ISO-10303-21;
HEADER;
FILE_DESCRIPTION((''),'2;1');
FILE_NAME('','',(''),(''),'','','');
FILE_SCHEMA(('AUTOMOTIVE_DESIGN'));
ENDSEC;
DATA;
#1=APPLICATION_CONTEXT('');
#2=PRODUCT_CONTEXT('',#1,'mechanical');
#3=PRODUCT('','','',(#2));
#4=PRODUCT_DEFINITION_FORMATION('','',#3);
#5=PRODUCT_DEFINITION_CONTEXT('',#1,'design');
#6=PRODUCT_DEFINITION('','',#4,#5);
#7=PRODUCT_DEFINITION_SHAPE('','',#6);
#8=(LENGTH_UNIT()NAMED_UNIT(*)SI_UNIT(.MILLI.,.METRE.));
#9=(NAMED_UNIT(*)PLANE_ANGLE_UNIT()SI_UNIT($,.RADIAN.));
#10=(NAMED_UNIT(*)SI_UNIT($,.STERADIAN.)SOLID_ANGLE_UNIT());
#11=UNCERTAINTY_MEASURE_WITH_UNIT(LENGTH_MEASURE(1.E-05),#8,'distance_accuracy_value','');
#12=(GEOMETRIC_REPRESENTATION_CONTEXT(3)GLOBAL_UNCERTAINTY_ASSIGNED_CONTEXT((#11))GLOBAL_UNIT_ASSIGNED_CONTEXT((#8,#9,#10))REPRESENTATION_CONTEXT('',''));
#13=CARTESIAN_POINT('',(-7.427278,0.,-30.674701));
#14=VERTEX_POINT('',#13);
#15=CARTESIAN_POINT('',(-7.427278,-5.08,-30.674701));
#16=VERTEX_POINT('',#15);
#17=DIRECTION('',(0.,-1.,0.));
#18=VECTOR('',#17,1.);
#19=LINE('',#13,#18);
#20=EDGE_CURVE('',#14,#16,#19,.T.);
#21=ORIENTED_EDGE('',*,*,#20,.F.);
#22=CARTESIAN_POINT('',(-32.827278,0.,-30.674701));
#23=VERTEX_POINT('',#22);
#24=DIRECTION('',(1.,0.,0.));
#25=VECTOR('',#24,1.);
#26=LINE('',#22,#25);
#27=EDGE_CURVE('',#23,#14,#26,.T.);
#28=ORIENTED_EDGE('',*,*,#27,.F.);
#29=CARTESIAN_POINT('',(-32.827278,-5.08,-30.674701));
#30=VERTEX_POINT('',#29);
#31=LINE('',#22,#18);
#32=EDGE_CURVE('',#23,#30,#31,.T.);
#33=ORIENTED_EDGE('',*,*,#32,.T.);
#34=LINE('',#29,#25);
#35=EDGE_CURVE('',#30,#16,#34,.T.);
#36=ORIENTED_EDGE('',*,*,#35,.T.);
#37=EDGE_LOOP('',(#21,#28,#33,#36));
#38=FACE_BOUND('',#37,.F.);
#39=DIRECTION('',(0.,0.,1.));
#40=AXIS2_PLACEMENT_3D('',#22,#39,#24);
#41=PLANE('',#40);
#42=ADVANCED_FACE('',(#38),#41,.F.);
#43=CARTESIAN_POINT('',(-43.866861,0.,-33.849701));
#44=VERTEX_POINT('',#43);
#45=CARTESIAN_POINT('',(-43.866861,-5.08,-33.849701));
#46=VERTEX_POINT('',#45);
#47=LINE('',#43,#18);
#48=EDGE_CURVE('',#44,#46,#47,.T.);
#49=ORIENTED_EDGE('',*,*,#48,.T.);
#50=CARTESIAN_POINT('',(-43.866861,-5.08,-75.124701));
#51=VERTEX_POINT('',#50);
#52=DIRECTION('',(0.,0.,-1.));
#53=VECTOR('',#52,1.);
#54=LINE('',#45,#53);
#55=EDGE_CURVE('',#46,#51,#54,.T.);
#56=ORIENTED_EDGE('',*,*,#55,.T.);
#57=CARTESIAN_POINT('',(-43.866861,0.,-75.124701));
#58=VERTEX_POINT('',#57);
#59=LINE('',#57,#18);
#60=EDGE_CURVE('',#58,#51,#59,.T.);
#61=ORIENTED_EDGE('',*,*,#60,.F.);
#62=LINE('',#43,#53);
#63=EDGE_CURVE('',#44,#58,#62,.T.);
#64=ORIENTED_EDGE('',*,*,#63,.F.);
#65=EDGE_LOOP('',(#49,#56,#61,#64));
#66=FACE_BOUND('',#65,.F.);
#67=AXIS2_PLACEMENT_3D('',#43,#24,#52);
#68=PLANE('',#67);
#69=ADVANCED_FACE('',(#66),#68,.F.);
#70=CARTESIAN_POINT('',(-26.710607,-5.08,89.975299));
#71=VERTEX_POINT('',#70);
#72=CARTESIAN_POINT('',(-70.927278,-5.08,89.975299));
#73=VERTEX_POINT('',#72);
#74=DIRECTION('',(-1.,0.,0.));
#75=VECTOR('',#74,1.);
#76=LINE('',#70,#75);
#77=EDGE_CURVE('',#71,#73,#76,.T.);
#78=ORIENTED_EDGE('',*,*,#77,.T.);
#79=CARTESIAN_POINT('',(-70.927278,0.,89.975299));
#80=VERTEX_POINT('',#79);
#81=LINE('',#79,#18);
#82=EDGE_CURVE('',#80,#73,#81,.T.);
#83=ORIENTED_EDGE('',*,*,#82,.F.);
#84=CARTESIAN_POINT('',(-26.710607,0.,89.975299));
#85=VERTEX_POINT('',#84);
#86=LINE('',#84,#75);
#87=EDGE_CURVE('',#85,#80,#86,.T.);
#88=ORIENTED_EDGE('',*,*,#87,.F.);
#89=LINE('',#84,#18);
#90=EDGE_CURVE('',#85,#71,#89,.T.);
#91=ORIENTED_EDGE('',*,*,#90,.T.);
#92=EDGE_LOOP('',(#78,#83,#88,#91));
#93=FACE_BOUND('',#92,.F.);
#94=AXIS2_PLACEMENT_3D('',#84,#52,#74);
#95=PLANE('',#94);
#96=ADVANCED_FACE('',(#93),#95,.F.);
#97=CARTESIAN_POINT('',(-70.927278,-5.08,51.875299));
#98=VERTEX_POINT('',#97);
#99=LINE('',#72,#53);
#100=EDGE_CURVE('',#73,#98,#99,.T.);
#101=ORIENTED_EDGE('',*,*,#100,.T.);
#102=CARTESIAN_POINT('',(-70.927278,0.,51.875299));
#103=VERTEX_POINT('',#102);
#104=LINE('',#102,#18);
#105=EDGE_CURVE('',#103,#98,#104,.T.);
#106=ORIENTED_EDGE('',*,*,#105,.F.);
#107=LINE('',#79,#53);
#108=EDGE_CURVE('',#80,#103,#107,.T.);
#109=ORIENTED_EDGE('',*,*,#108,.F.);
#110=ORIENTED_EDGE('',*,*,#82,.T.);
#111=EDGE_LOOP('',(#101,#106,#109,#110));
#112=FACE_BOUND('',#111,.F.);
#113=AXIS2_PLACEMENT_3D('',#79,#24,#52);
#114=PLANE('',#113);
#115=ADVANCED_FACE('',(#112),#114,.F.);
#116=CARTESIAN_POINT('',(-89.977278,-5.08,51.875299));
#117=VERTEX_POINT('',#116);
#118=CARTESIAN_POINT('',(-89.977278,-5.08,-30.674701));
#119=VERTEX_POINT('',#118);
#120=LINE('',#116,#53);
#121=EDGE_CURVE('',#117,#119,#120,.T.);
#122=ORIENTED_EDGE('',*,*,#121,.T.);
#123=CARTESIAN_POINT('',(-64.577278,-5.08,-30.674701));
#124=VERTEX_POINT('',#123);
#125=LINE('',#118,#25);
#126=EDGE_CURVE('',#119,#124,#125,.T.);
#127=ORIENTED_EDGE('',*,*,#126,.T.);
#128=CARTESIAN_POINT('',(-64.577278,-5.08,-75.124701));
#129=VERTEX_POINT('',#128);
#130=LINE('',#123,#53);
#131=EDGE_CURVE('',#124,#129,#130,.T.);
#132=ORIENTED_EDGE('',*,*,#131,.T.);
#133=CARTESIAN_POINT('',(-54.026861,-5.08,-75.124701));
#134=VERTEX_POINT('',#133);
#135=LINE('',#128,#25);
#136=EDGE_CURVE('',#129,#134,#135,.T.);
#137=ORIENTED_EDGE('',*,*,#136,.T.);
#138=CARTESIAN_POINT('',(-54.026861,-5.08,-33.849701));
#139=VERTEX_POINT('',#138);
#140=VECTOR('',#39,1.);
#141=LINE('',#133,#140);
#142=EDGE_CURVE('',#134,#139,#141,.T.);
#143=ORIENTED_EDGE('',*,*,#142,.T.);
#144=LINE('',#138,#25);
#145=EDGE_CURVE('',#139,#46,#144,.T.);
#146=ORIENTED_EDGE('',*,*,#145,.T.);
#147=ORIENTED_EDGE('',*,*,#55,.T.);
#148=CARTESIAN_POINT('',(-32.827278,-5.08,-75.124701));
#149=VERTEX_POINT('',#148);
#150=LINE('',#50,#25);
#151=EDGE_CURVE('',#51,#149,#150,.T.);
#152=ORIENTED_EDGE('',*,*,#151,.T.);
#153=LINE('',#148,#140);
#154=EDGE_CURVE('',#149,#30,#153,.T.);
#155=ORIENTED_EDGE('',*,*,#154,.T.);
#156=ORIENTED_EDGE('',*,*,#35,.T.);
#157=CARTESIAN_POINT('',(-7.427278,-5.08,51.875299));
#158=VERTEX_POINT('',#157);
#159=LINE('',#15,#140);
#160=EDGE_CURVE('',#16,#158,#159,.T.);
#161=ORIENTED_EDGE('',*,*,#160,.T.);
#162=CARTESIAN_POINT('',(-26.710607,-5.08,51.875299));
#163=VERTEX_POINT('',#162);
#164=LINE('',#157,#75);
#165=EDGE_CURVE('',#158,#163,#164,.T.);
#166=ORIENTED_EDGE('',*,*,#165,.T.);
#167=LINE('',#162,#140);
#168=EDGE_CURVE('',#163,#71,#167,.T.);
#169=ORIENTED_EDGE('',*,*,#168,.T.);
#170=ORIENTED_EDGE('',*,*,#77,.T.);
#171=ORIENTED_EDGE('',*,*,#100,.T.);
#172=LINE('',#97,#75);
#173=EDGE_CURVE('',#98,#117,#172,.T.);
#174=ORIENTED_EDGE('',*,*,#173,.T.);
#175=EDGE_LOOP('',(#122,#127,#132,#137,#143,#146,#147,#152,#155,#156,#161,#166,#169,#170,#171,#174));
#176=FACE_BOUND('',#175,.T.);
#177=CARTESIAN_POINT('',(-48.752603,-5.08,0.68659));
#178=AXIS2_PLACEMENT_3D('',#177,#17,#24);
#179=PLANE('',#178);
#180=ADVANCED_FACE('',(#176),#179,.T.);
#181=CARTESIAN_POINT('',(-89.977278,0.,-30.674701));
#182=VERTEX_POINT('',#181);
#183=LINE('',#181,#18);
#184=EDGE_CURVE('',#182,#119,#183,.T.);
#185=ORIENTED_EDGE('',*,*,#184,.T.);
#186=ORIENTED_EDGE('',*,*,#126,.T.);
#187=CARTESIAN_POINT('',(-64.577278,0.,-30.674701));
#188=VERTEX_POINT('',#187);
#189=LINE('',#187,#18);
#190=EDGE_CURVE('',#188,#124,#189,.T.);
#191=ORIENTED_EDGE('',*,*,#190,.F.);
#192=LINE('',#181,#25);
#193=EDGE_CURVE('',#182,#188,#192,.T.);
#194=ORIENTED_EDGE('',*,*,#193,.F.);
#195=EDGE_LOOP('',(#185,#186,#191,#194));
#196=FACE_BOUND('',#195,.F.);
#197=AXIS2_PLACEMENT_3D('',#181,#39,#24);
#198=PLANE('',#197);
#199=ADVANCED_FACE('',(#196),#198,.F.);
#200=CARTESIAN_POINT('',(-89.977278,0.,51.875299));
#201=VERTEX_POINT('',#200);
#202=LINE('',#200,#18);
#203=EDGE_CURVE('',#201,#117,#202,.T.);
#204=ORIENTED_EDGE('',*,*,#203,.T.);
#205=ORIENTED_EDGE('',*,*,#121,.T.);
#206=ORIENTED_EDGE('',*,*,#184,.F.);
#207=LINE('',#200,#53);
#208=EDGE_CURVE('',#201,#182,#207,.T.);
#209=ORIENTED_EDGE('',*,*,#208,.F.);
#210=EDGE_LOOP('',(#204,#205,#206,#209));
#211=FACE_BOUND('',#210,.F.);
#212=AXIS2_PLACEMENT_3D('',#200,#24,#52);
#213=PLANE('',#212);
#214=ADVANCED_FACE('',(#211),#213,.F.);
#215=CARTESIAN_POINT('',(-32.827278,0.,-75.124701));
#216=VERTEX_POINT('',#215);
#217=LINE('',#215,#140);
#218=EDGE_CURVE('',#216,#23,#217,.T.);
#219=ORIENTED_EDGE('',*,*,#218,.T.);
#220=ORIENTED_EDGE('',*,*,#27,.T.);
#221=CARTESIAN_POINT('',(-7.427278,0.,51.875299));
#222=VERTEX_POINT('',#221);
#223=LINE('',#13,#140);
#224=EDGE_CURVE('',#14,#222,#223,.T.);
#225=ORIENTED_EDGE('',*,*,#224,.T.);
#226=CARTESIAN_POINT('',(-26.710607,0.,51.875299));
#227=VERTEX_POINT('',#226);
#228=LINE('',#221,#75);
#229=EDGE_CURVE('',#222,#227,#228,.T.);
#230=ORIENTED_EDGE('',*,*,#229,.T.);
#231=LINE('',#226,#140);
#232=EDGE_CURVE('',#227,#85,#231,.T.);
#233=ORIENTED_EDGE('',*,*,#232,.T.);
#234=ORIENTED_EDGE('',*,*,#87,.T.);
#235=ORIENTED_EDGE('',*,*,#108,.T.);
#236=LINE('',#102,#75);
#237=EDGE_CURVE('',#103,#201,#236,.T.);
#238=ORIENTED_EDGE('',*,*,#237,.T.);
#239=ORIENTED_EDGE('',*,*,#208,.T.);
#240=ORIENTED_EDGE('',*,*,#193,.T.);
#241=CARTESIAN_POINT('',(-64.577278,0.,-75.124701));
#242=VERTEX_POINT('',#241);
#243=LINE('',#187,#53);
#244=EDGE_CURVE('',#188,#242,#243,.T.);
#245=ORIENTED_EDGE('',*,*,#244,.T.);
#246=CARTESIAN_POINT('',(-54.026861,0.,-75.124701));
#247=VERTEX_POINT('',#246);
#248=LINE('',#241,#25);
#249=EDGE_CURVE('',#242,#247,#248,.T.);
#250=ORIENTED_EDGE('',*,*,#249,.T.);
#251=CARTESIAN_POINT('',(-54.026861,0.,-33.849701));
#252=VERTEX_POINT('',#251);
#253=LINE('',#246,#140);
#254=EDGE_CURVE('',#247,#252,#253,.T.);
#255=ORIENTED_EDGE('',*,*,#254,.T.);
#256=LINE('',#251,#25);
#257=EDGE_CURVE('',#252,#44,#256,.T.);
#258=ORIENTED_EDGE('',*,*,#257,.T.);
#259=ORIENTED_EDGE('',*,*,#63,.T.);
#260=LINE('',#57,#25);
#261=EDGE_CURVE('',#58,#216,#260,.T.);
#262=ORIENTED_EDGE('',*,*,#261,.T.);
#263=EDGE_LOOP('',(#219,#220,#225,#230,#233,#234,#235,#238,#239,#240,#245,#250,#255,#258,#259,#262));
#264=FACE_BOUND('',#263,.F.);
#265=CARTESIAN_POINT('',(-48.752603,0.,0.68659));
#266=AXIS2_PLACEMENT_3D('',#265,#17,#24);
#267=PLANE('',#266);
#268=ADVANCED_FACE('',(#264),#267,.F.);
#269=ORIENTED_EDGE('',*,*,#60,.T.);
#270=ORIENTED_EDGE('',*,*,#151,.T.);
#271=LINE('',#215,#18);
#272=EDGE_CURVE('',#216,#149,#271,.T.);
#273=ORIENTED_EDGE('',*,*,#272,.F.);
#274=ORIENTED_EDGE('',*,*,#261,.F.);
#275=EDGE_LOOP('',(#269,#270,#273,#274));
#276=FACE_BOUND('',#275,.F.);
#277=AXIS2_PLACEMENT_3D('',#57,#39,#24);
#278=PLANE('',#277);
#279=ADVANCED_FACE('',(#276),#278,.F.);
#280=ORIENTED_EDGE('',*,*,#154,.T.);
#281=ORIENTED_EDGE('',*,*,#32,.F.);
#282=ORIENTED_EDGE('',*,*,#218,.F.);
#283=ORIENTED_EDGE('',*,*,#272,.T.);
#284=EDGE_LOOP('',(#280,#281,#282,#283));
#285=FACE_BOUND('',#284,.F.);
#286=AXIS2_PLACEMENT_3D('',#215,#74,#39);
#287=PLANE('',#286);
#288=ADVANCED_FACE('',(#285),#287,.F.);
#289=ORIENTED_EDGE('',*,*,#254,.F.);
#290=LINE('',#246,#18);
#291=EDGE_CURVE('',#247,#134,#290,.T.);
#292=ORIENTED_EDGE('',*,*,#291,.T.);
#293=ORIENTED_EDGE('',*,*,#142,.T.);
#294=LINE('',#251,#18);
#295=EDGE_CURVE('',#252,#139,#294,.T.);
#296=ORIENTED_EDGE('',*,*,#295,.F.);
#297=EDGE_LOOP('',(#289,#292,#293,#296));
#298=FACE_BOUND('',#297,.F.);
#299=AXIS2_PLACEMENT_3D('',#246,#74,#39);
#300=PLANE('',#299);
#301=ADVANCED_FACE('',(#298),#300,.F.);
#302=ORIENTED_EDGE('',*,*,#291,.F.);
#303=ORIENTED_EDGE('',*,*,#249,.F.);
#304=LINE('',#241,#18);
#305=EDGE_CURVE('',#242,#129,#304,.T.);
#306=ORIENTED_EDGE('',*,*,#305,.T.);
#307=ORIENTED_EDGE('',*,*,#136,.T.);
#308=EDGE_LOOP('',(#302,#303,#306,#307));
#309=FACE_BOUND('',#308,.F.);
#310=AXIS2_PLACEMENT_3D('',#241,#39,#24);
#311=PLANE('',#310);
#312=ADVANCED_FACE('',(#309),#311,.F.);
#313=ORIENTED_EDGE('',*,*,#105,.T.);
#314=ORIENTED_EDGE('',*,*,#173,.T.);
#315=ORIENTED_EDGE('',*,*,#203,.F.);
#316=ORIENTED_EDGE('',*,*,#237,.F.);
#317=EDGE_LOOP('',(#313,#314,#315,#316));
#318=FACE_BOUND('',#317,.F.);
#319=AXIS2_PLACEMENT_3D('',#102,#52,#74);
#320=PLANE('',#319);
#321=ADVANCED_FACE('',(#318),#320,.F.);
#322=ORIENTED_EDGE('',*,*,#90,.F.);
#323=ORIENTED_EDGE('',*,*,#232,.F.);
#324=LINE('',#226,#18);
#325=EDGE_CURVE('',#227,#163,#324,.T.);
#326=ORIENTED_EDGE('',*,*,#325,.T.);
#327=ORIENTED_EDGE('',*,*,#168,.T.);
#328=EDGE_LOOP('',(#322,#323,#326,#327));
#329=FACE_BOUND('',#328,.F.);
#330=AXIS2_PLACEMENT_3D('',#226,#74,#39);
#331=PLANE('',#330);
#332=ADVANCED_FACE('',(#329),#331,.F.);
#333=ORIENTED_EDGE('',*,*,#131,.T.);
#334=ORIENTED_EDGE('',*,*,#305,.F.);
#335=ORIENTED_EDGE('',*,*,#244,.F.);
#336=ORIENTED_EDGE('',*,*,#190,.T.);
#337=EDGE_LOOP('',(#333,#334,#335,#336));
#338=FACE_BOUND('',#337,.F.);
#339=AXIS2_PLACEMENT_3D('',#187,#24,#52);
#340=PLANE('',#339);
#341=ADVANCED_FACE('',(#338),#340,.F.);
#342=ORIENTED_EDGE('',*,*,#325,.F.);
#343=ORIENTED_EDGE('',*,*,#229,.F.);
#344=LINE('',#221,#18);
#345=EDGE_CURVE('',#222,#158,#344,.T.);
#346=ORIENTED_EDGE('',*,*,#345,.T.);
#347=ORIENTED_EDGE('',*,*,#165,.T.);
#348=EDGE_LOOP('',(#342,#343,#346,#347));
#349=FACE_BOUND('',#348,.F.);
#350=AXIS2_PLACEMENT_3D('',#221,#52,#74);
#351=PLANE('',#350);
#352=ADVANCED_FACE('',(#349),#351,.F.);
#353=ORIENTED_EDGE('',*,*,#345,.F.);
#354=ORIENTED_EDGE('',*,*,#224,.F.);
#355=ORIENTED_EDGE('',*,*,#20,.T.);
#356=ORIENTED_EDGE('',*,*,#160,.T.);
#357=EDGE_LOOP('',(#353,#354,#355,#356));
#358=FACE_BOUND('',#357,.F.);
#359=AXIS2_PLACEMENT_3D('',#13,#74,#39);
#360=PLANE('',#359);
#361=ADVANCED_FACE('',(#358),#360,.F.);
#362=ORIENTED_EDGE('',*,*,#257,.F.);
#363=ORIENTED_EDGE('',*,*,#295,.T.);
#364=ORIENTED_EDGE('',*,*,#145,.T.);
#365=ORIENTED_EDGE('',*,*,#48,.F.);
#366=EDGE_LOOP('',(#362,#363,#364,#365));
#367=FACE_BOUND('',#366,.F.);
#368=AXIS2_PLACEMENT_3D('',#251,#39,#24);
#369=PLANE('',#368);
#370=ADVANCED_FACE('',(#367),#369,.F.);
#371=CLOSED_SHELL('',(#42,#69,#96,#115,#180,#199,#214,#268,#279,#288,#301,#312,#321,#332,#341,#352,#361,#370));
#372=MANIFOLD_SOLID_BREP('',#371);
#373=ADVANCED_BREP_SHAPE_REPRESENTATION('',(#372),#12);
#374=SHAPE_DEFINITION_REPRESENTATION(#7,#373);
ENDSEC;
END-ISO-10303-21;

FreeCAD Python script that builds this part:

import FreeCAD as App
import Part
import Sketcher
Q = App.Units.Quantity

doc = App.newDocument("Part")
body = doc.addObject("PartDesign::Body", "Body")

# Sketch on XZ plane
sketch1 = body.newObject("Sketcher::SketchObject", "Sketch")
sketch1.AttachmentSupport = (doc.getObject("XZ_Plane"), [""])
sketch1.MapMode = "FlatFace"
sketch1.addGeometry([
    Part.LineSegment(App.Vector(-71, 52, 0), App.Vector(-90, 52, 0)),  # 0
    Part.LineSegment(App.Vector(-90, 52, 0), App.Vector(-90, -31, 0)),  # 1
    Part.LineSegment(App.Vector(-90, -31, 0), App.Vector(-65, -31, 0)),  # 2
    Part.LineSegment(App.Vector(-65, -31, 0), App.Vector(-65, -75, 0)),  # 3
    Part.LineSegment(App.Vector(-65, -75, 0), App.Vector(-54, -75, 0)),  # 4
    Part.LineSegment(App.Vector(-54, -75, 0), App.Vector(-54, -34, 0)),  # 5
    Part.LineSegment(App.Vector(-54, -34, 0), App.Vector(-44, -34, 0)),  # 6
    Part.LineSegment(App.Vector(-44, -34, 0), App.Vector(-44, -75, 0)),  # 7
    Part.LineSegment(App.Vector(-44, -75, 0), App.Vector(-33, -75, 0)),  # 8
    Part.LineSegment(App.Vector(-33, -75, 0), App.Vector(-33, -31, 0)),  # 9
    Part.LineSegment(App.Vector(-33, -31, 0), App.Vector(-7, -31, 0)),  # 10
    Part.LineSegment(App.Vector(-7, -31, 0), App.Vector(-7, 52, 0)),  # 11
    Part.LineSegment(App.Vector(-7, 52, 0), App.Vector(-27, 52, 0)),  # 12
    Part.LineSegment(App.Vector(-27, 52, 0), App.Vector(-27, 90, 0)),  # 13
    Part.LineSegment(App.Vector(-27, 90, 0), App.Vector(-71, 90, 0)),  # 14
    Part.LineSegment(App.Vector(-71, 90, 0), App.Vector(-71, 52, 0)),  # 15
], False)
sketch1.addConstraint([
    Sketcher.Constraint("Coincident", 0, 2, 1, 1),
    Sketcher.Constraint("Coincident", 1, 2, 2, 1),
    Sketcher.Constraint("Coincident", 2, 2, 3, 1),
    Sketcher.Constraint("Coincident", 3, 2, 4, 1),
    Sketcher.Constraint("Coincident", 4, 2, 5, 1),
    Sketcher.Constraint("Coincident", 5, 2, 6, 1),
    Sketcher.Constraint("Coincident", 6, 2, 7, 1),
    Sketcher.Constraint("Coincident", 7, 2, 8, 1),
    Sketcher.Constraint("Coincident", 8, 2, 9, 1),
    Sketcher.Constraint("Coincident", 9, 2, 10, 1),
    Sketcher.Constraint("Coincident", 10, 2, 11, 1),
    Sketcher.Constraint("Coincident", 11, 2, 12, 1),
    Sketcher.Constraint("Coincident", 12, 2, 13, 1),
    Sketcher.Constraint("Coincident", 13, 2, 14, 1),
    Sketcher.Constraint("Coincident", 14, 2, 15, 1),
    Sketcher.Constraint("Coincident", 15, 2, 0, 1),
    Sketcher.Constraint("Horizontal", 0),
    Sketcher.Constraint("Vertical", 1),
    Sketcher.Constraint("Horizontal", 2),
    Sketcher.Constraint("Vertical", 3),
    Sketcher.Constraint("Horizontal", 4),
    Sketcher.Constraint("Vertical", 5),
    Sketcher.Constraint("Horizontal", 6),
    Sketcher.Constraint("Vertical", 7),
    Sketcher.Constraint("Horizontal", 8),
    Sketcher.Constraint("Vertical", 9),
    Sketcher.Constraint("Horizontal", 10),
    Sketcher.Constraint("Vertical", 11),
    Sketcher.Constraint("Horizontal", 12),
    Sketcher.Constraint("Vertical", 13),
    Sketcher.Constraint("Horizontal", 14),
    Sketcher.Constraint("Vertical", 15),
    Sketcher.Constraint("Horizontal", 4, 2, 7, 2),
    Sketcher.Constraint("Horizontal", 2, 2, 9, 2),
    Sketcher.Constraint("Horizontal", 0, 2, 11, 2),
    Sketcher.Constraint("Equal", 2, 10),
    Sketcher.Constraint("DistanceX", 2, 1, 2, 2, Q("1 in")),
    Sketcher.Constraint("DistanceX", 6, 1, 6, 2, Q("0.4 in")),
    Sketcher.Constraint("DistanceY", 13, 1, 13, 2, Q("1.5 in")),
    Sketcher.Constraint("DistanceY", 3, 2, 0, 2, Q("5 in")),
    Sketcher.Constraint("DistanceX", 0, 2, 0, 1, Q("0.75 in")),
    Sketcher.Constraint("DistanceY", 1, 2, 1, 1, Q("3.25 in")),
    Sketcher.Constraint("DistanceX", 14, 2, 11, 2, Q("2.5 in")),
    Sketcher.Constraint("DistanceY", 5, 1, 5, 2, Q("1.625 in")),
    Sketcher.Constraint("DistanceX", 12, 2, 12, 1, 19.283329),
    Sketcher.Constraint("DistanceY", -1, 1, 0, 2, 51.875299),
    Sketcher.Constraint("DistanceX", 4, 1, 4, 2, 10.550417),
    Sketcher.Constraint("DistanceX", 0, 2, -1, 1, 89.977278),
])
pad1 = body.newObject("PartDesign::Pad", "Pad")
pad1.Profile = sketch1
pad1.Length = Q("0.2 in")

doc.recompute()
